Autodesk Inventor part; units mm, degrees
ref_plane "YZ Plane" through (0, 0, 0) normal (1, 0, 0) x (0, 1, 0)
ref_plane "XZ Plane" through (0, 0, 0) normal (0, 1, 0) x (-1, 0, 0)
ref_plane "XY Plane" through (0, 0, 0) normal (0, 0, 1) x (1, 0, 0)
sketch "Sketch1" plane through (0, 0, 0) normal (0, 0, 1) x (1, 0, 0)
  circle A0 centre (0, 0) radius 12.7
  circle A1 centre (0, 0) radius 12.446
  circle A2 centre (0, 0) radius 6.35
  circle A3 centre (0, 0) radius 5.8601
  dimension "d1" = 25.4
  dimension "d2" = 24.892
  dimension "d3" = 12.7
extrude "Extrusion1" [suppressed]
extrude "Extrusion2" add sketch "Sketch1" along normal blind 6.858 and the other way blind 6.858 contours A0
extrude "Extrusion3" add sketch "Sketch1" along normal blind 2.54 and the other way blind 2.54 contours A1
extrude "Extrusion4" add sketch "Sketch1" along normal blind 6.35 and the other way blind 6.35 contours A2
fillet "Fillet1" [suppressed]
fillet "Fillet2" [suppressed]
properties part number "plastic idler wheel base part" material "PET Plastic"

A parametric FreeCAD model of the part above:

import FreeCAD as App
import Part
import Sketcher

V = App.Vector
Q = App.Units.Quantity

doc = App.newDocument("Part")
body = doc.addObject("PartDesign::Body", "Body")

# Sketch on XY plane
sketch1 = body.newObject("Sketcher::SketchObject", "Sketch")
sketch1.AttachmentSupport = (doc.getObject("XY_Plane"), [""])
sketch1.MapMode = "FlatFace"
sketch1.addGeometry(Part.Circle(V(0, 0, 0), V(0, 0, 1), 13), False)
sketch1.addGeometry(Part.Circle(V(0, 0, 0), V(0, 0, 1), 12), False)
sketch1.addConstraint(Sketcher.Constraint("Coincident", 0, 3, -1, 1))
sketch1.addConstraint(Sketcher.Constraint("Coincident", 1, 3, -1, 1))
sketch1.addConstraint(Sketcher.Constraint("Diameter", 0, Q("1 in")))
sketch1.addConstraint(Sketcher.Constraint("Diameter", 1, Q("0.98 in")))
pad1 = body.newObject("PartDesign::Pad", "Pad")
pad1.Profile = sketch1
pad1.Type = "TwoLengths"
pad1.Length = Q("0.27 in")
pad1.Length2 = Q("0.27 in")

# Sketch on XY plane
sketch2 = body.newObject("Sketcher::SketchObject", "Sketch001")
sketch2.AttachmentSupport = (doc.getObject("XY_Plane"), [""])
sketch2.MapMode = "FlatFace"
sketch2.addGeometry(Part.Circle(V(0, 0, 0), V(0, 0, 1), 12), False)
sketch2.addGeometry(Part.Circle(V(0, 0, 0), V(0, 0, 1), 6), False)
sketch2.addConstraint(Sketcher.Constraint("Coincident", 0, 3, -1, 1))
sketch2.addConstraint(Sketcher.Constraint("Coincident", 1, 3, -1, 1))
sketch2.addConstraint(Sketcher.Constraint("Diameter", 1, Q("0.5 in")))
sketch2.addConstraint(Sketcher.Constraint("Diameter", 0, Q("0.98 in")))
pad2 = body.newObject("PartDesign::Pad", "Pad001")
pad2.Profile = sketch2
pad2.Type = "TwoLengths"
pad2.Length = Q("0.1 in")
pad2.Length2 = Q("0.1 in")

# Sketch on XY plane
sketch3 = body.newObject("Sketcher::SketchObject", "Sketch002")
sketch3.AttachmentSupport = (doc.getObject("XY_Plane"), [""])
sketch3.MapMode = "FlatFace"
sketch3.addGeometry(Part.Circle(V(0, 0, 0), V(0, 0, 1), 6), False)
sketch3.addGeometry(Part.Circle(V(0, 0, 0), V(0, 0, 1), 6), False)
sketch3.addConstraint(Sketcher.Constraint("Coincident", 0, 3, -1, 1))
sketch3.addConstraint(Sketcher.Constraint("Coincident", 1, 3, -1, 1))
sketch3.addConstraint(Sketcher.Constraint("Diameter", 0, Q("0.5 in")))
sketch3.addConstraint(Sketcher.Constraint("Diameter", 1, 11.7202))
pad3 = body.newObject("PartDesign::Pad", "Pad002")
pad3.Profile = sketch3
pad3.Type = "TwoLengths"
pad3.Length = Q("0.25 in")
pad3.Length2 = Q("0.25 in")

doc.recompute()
